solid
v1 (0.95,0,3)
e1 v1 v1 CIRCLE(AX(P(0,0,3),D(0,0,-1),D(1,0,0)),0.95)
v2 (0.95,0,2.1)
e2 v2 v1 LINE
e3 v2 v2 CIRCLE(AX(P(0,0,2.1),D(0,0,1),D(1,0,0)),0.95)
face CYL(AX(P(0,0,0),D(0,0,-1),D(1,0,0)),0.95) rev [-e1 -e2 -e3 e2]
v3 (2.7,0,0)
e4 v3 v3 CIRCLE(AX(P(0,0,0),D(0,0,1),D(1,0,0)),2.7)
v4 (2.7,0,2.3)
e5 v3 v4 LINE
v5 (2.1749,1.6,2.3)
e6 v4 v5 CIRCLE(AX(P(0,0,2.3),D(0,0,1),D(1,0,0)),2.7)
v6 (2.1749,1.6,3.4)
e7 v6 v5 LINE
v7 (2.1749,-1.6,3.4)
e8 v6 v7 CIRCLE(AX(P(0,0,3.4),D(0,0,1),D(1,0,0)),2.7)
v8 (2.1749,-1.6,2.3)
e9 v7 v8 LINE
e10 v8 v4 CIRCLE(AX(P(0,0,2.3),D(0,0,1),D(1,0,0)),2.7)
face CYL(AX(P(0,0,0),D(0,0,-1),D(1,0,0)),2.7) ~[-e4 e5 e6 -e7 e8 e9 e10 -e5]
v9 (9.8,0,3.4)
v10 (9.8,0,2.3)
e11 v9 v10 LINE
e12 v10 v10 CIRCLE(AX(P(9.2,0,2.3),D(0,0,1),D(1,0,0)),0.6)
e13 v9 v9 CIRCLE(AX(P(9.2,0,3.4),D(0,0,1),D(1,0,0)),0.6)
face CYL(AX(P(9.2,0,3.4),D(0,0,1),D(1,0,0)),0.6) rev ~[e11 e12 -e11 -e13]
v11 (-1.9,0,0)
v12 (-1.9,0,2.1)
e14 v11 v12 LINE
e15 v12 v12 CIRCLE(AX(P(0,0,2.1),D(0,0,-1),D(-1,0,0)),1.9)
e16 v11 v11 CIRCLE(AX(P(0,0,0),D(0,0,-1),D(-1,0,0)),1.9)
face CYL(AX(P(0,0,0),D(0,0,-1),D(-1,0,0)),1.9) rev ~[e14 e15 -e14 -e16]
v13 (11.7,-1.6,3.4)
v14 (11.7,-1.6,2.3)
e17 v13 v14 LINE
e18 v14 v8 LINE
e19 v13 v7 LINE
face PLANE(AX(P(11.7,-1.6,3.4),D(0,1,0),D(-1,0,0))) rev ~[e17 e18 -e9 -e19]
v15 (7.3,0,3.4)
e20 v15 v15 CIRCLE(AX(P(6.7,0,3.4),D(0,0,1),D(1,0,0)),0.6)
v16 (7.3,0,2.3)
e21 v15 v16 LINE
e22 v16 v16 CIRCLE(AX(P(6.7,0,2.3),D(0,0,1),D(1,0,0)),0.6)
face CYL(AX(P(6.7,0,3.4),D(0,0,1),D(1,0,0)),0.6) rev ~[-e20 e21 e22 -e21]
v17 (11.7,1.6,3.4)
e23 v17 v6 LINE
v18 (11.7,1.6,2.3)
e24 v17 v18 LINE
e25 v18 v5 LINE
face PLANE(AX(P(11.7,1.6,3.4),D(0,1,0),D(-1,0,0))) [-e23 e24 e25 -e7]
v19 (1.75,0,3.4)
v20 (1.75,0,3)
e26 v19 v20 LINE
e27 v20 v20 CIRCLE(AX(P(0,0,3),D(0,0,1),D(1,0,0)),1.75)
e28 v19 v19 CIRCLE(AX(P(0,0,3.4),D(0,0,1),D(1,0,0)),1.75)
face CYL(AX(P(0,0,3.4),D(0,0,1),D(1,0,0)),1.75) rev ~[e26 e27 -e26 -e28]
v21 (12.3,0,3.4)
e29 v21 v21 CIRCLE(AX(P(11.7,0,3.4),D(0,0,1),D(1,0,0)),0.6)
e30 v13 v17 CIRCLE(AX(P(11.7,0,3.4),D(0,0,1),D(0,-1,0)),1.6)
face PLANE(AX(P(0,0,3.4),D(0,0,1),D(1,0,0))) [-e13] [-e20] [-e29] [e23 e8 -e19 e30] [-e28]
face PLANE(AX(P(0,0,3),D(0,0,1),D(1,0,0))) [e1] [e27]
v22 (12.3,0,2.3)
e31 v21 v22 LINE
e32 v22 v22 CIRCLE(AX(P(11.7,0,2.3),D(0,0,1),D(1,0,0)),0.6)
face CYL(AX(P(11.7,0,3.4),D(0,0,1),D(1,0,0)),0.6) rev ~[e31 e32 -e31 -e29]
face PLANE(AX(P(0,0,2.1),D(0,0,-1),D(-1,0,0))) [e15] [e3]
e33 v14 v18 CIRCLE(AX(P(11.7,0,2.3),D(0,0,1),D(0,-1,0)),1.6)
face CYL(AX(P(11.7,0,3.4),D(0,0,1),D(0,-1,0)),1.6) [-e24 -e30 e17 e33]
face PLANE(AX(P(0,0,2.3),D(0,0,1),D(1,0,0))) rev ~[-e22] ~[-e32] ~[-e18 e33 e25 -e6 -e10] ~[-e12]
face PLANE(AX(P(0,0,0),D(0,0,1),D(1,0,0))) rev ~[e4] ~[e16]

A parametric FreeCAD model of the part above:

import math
import FreeCAD as App
import Part
import Sketcher

doc = App.newDocument("Part")
body = doc.addObject("PartDesign::Body", "Body")

sketch1 = body.newObject("Sketcher::SketchObject", "Sketch")
sketch1.AttachmentSupport = (doc.getObject("XY_Plane"), [""])
sketch1.MapMode = "FlatFace"
sketch1.addGeometry(Part.Circle(App.Vector(0, 0, 0), App.Vector(0, 0, 1), 2.7), False)
sketch1.addGeometry(Part.Circle(App.Vector(0, 0, 0), App.Vector(0, 0, 1), 0.9), False)
sketch1.addConstraint(Sketcher.Constraint("Coincident", 0, 3, -1, 1))
sketch1.addConstraint(Sketcher.Constraint("Coincident", 1, 3, -1, 1))
sketch1.addConstraint(Sketcher.Constraint("Diameter", 0, 5.4))
sketch1.addConstraint(Sketcher.Constraint("Diameter", 1, 1.9))
pad1 = body.newObject("PartDesign::Pad", "Pad")
pad1.Profile = sketch1
pad1.Length = 3.4

sketch2 = body.newObject("Sketcher::SketchObject", "Sketch001")
sketch2.AttachmentSupport = (doc.getObject("XY_Plane"), [""])
sketch2.MapMode = "FlatFace"
sketch2.AttachmentOffset = App.Placement(App.Vector(0, 0, 3.4), App.Rotation())
sketch2.addGeometry(Part.Circle(App.Vector(0, 0, 0), App.Vector(0, 0, 1), 1.8), False)
sketch2.addConstraint(Sketcher.Constraint("Coincident", 0, 3, -1, 1))
sketch2.addConstraint(Sketcher.Constraint("Diameter", 0, 3.5))
pocket1 = body.newObject("PartDesign::Pocket", "Pocket")
pocket1.Profile = sketch2
pocket1.Length = 0.4

sketch3 = body.newObject("Sketcher::SketchObject", "Sketch002")
sketch3.AttachmentSupport = (doc.getObject("XY_Plane"), [""])
sketch3.MapMode = "FlatFace"
sketch3.addGeometry(Part.Circle(App.Vector(0, 0, 0), App.Vector(0, 0, 1), 1.9), False)
sketch3.addGeometry(Part.Circle(App.Vector(0, 0, 0), App.Vector(0, 0, 1), 0.9), False)
sketch3.addConstraint(Sketcher.Constraint("Coincident", 0, 3, -1, 1))
sketch3.addConstraint(Sketcher.Constraint("Coincident", 1, 3, -1, 1))
sketch3.addConstraint(Sketcher.Constraint("Diameter", 0, 3.8))
sketch3.addConstraint(Sketcher.Constraint("Diameter", 1, 1.9))
pocket2 = body.newObject("PartDesign::Pocket", "Pocket001")
pocket2.Profile = sketch3
pocket2.Length = 2.1
pocket2.Reversed = True

sketch4 = body.newObject("Sketcher::SketchObject", "Sketch003")
sketch4.AttachmentSupport = (doc.getObject("XY_Plane"), [""])
sketch4.MapMode = "FlatFace"
sketch4.AttachmentOffset = App.Placement(App.Vector(0, 0, 3.4), App.Rotation())
sketch4.addGeometry(Part.LineSegment(App.Vector(2.2, -1.6, 0), App.Vector(11.7, -1.6, 0)), False)
sketch4.addGeometry(Part.ArcOfCircle(Part.Circle(App.Vector(11.7, 0, 0), App.Vector(0, 0, 1), 1.6), math.radians(-90), math.radians(90)), False)
sketch4.addGeometry(Part.LineSegment(App.Vector(11.7, 1.6, 0), App.Vector(2.2, 1.6, 0)), False)
sketch4.addGeometry(Part.ArcOfCircle(Part.Circle(App.Vector(0, 0, 0), App.Vector(0, 0, 1), 2.7), math.radians(-36), math.radians(36)), False)
sketch4.addConstraint(Sketcher.Constraint("Tangent", 0, 2, 1, 1))
sketch4.addConstraint(Sketcher.Constraint("Tangent", 1, 2, 2, 1))
sketch4.addConstraint(Sketcher.Constraint("Coincident", 2, 2, 3, 2))
sketch4.addConstraint(Sketcher.Constraint("Coincident", 3, 1, 0, 1))
sketch4.addConstraint(Sketcher.Constraint("Horizontal", 0))
sketch4.addConstraint(Sketcher.Constraint("Horizontal", 2))
sketch4.addConstraint(Sketcher.Constraint("Coincident", 3, 3, -1, 1))
sketch4.addConstraint(Sketcher.Constraint("PointOnObject", 1, 3, -1))
sketch4.addConstraint(Sketcher.Constraint("Radius", 1, 1.6))
sketch4.addConstraint(Sketcher.Constraint("DistanceX", -1, 1, 1, 3, 11.7))
sketch4.addConstraint(Sketcher.Constraint("Radius", 3, 2.7))
pad2 = body.newObject("PartDesign::Pad", "Pad001")
pad2.Profile = sketch4
pad2.Length = 1.1
pad2.Reversed = True

sketch5 = body.newObject("Sketcher::SketchObject", "Sketch004")
sketch5.AttachmentSupport = (doc.getObject("XY_Plane"), [""])
sketch5.MapMode = "FlatFace"
sketch5.AttachmentOffset = App.Placement(App.Vector(0, 0, 3.4), App.Rotation())
sketch5.addGeometry(Part.Circle(App.Vector(11.7, 0, 0), App.Vector(0, 0, 1), 0.6), False)
sketch5.addGeometry(Part.Circle(App.Vector(9.2, 0, 0), App.Vector(0, 0, 1), 0.6), False)
sketch5.addGeometry(Part.Circle(App.Vector(6.7, 0, 0), App.Vector(0, 0, 1), 0.6), False)
sketch5.addConstraint(Sketcher.Constraint("Equal", 0, 1))
sketch5.addConstraint(Sketcher.Constraint("Equal", 1, 2))
sketch5.addConstraint(Sketcher.Constraint("PointOnObject", 0, 3, -1))
sketch5.addConstraint(Sketcher.Constraint("PointOnObject", 1, 3, -1))
sketch5.addConstraint(Sketcher.Constraint("PointOnObject", 2, 3, -1))
sketch5.addConstraint(Sketcher.Constraint("Diameter", 0, 1.2))
sketch5.addConstraint(Sketcher.Constraint("DistanceX", 1, 3, 0, 3, 2.5))
sketch5.addConstraint(Sketcher.Constraint("DistanceX", 2, 3, 1, 3, 2.5))
sketch5.addConstraint(Sketcher.Constraint("DistanceX", -1, 1, 0, 3, 11.7))
pocket3 = body.newObject("PartDesign::Pocket", "Pocket002")
pocket3.Profile = sketch5
pocket3.Type = "UpToFirst"

doc.recompute()
